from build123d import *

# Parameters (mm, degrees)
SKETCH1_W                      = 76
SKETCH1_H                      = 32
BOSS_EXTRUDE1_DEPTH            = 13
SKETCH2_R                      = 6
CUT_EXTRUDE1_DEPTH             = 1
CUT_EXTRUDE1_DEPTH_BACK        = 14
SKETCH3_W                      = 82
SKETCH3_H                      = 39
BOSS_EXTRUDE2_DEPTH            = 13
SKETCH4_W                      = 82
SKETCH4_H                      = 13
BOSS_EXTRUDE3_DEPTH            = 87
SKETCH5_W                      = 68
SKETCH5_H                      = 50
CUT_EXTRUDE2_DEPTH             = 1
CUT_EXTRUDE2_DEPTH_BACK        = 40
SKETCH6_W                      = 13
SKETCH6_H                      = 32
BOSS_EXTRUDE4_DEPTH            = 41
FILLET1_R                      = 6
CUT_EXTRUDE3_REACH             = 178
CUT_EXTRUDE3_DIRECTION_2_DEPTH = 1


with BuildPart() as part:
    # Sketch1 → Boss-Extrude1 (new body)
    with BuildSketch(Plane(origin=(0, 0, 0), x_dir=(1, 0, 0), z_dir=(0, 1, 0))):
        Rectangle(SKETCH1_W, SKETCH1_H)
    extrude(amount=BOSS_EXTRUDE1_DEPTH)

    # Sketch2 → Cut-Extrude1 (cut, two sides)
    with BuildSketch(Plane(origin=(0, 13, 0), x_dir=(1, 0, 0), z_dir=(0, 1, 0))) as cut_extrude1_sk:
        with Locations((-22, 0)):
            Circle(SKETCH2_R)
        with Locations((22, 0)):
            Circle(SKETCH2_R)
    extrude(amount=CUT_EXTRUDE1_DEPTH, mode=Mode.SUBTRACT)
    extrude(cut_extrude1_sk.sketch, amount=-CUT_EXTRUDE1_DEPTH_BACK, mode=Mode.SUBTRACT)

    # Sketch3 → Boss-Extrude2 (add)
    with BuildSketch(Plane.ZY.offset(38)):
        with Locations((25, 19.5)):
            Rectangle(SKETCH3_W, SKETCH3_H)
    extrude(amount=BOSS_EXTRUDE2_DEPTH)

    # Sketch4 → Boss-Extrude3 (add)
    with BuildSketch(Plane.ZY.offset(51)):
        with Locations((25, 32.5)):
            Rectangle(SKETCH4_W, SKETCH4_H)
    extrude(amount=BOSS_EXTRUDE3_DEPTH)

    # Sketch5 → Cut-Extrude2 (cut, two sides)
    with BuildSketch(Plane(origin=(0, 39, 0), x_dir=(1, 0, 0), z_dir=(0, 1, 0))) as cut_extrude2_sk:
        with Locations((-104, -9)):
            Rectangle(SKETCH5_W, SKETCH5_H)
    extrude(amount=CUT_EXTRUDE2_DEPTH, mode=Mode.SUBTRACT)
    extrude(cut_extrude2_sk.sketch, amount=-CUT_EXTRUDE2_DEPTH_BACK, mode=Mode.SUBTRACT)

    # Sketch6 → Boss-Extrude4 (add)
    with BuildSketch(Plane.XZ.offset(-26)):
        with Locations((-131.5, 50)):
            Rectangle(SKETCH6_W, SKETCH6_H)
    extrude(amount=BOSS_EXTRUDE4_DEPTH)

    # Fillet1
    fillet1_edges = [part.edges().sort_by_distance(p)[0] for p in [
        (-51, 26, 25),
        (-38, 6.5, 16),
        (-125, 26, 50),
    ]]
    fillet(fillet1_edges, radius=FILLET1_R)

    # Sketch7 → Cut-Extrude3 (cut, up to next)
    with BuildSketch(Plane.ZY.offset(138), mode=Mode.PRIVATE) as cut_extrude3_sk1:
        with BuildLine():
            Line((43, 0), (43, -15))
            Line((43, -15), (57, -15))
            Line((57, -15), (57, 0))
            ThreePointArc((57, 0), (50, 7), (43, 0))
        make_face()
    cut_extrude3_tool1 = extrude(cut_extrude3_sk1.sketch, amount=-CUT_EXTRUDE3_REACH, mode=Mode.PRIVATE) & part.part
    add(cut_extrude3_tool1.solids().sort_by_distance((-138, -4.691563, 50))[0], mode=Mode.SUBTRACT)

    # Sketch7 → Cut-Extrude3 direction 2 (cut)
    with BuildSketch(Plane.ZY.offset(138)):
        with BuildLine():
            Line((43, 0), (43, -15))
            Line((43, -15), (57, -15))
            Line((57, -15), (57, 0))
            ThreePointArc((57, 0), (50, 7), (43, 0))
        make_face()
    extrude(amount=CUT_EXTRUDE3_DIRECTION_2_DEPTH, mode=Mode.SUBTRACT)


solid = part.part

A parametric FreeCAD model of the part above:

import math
import FreeCAD as App
import Part
import Sketcher
from FreeCAD import Vector
Q = App.Units.Quantity


def edges_at(feature, points):
    """Names of the edges that pass closest to the given points."""
    edges = feature.Shape.Edges
    near = lambda p: min(range(len(edges)), key=lambda i: edges[i].distToShape(Part.Vertex(*p))[0])
    return sorted({f"Edge{near(p) + 1}" for p in points})


def add_polygon(sketch, points):
    """Adds a closed chain of lines whose ends are joined by coincident constraints."""
    first, n = sketch.GeometryCount, len(points)
    for a, b in zip(points, points[1:] + points[:1]):
        sketch.addGeometry(Part.LineSegment(App.Vector(*a, 0), App.Vector(*b, 0)), False)
    for i in range(n):
        sketch.addConstraint(Sketcher.Constraint("Coincident", first + i, 2, first + (i + 1) % n, 1))

doc = App.newDocument("Part")
body = doc.addObject("PartDesign::Body", "Body")

# Sketch on XZ plane
sketch1 = doc.addObject("Sketcher::SketchObject", "Sketch")
body.addObject(sketch1)
sketch1.AttachmentSupport = (doc.XZ_Plane, [""])
sketch1.MapMode = "FlatFace"
add_polygon(sketch1, [(-38, -16), (-38, 16), (38, 16), (38, -16)])  # lines 0-3
sketch1.addConstraint([
    Sketcher.Constraint("Vertical", 0),
    Sketcher.Constraint("Horizontal", 1),
    Sketcher.Constraint("Vertical", 2),
    Sketcher.Constraint("Horizontal", 3),
    Sketcher.Constraint("Symmetric", 0, 2, 2, 2, -1, 1),
    Sketcher.Constraint("DistanceX", 1, 1, 1, 2, Q("76 mm")),
    Sketcher.Constraint("DistanceY", 0, 1, 0, 2, Q("32 mm")),
])
pad1 = doc.addObject("PartDesign::Pad", "Pad")
body.addObject(pad1)
pad1.Profile = sketch1
pad1.Length = 13
pad1.Reversed = True

# Sketch on XZ plane
sketch2 = doc.addObject("Sketcher::SketchObject", "Sketch001")
body.addObject(sketch2)
sketch2.AttachmentSupport = (doc.XZ_Plane, [""])
sketch2.MapMode = "FlatFace"
sketch2.AttachmentOffset = App.Placement(Vector(0, 0, -13), App.Rotation())
sketch2.addGeometry([
    Part.Circle(Vector(-22, 0, 0), Vector(0, 0, 1), 6),
    Part.Circle(Vector(22, 0, 0), Vector(0, 0, 1), 6),
], False)
sketch2.addConstraint([
    Sketcher.Constraint("Equal", 0, 1),
    Sketcher.Constraint("Symmetric", 0, 3, 1, 3, -1, 1),
    Sketcher.Constraint("PointOnObject", 0, 3, -1),
    Sketcher.Constraint("Diameter", 0, Q("12 mm")),
    Sketcher.Constraint("DistanceX", 0, 3, -1, 1, Q("22 mm")),
])
pocket1 = doc.addObject("PartDesign::Pocket", "Pocket")
body.addObject(pocket1)
pocket1.Profile = sketch2
pocket1.Type = "ThroughAll"
pocket1.Midplane = True

# Sketch on YZ plane
sketch3 = doc.addObject("Sketcher::SketchObject", "Sketch002")
body.addObject(sketch3)
sketch3.AttachmentSupport = (doc.YZ_Plane, [""])
sketch3.MapMode = "FlatFace"
sketch3.AttachmentOffset = App.Placement(Vector(0, 0, -38), App.Rotation())
add_polygon(sketch3, [(39, -16), (0, -16), (0, 66), (39, 66)])  # lines 0-3
sketch3.addConstraint([
    Sketcher.Constraint("Horizontal", 0),
    Sketcher.Constraint("Vertical", 1),
    Sketcher.Constraint("Horizontal", 2),
    Sketcher.Constraint("Vertical", 3),
    Sketcher.Constraint("PointOnObject", 0, 2, -2),
    Sketcher.Constraint("DistanceX", 0, 2, 0, 1, Q("39 mm")),
    Sketcher.Constraint("DistanceY", 1, 1, 1, 2, Q("82 mm")),
    Sketcher.Constraint("DistanceY", 0, 2, -1, 1, Q("16 mm")),
])
pad2 = doc.addObject("PartDesign::Pad", "Pad001")
body.addObject(pad2)
pad2.Profile = sketch3
pad2.Length = 13
pad2.Reversed = True

# Sketch on YZ plane
sketch4 = doc.addObject("Sketcher::SketchObject", "Sketch003")
body.addObject(sketch4)
sketch4.AttachmentSupport = (doc.YZ_Plane, [""])
sketch4.MapMode = "FlatFace"
sketch4.AttachmentOffset = App.Placement(Vector(0, 0, -51), App.Rotation())
add_polygon(sketch4, [(39, -16), (26, -16), (26, 66), (39, 66)])  # lines 0-3
sketch4.addConstraint([
    Sketcher.Constraint("Horizontal", 0),
    Sketcher.Constraint("Vertical", 1),
    Sketcher.Constraint("Horizontal", 2),
    Sketcher.Constraint("Vertical", 3),
    Sketcher.Constraint("DistanceX", 0, 2, 0, 1, Q("13 mm")),
    Sketcher.Constraint("DistanceY", 1, 1, 1, 2, Q("82 mm")),
    Sketcher.Constraint("DistanceX", -1, 1, 0, 2, Q("26 mm")),
    Sketcher.Constraint("DistanceY", 0, 2, -1, 1, Q("16 mm")),
])
pad3 = doc.addObject("PartDesign::Pad", "Pad002")
body.addObject(pad3)
pad3.Profile = sketch4
pad3.Length = 87
pad3.Reversed = True

# Sketch on XZ plane
sketch5 = doc.addObject("Sketcher::SketchObject", "Sketch004")
body.addObject(sketch5)
sketch5.AttachmentSupport = (doc.XZ_Plane, [""])
sketch5.MapMode = "FlatFace"
sketch5.AttachmentOffset = App.Placement(Vector(0, 0, -39), App.Rotation())
add_polygon(sketch5, [(-138, -16), (-138, 34), (-70, 34), (-70, -16)])  # lines 0-3
sketch5.addConstraint([
    Sketcher.Constraint("Vertical", 0),
    Sketcher.Constraint("Horizontal", 1),
    Sketcher.Constraint("Vertical", 2),
    Sketcher.Constraint("Horizontal", 3),
    Sketcher.Constraint("DistanceX", 1, 1, 1, 2, Q("68 mm")),
    Sketcher.Constraint("DistanceY", 0, 1, 0, 2, Q("50 mm")),
    Sketcher.Constraint("DistanceX", 0, 2, -1, 1, Q("138 mm")),
    Sketcher.Constraint("DistanceY", -1, 1, 0, 2, Q("34 mm")),
])
pocket2 = doc.addObject("PartDesign::Pocket", "Pocket001")
body.addObject(pocket2)
pocket2.Profile = sketch5
pocket2.Type = "ThroughAll"
pocket2.Midplane = True

# Sketch on XZ plane
sketch6 = doc.addObject("Sketcher::SketchObject", "Sketch005")
body.addObject(sketch6)
sketch6.AttachmentSupport = (doc.XZ_Plane, [""])
sketch6.MapMode = "FlatFace"
sketch6.AttachmentOffset = App.Placement(Vector(0, 0, -26), App.Rotation())
add_polygon(sketch6, [(-138, 66), (-138, 34), (-125, 34), (-125, 66)])  # lines 0-3
sketch6.addConstraint([
    Sketcher.Constraint("Vertical", 0),
    Sketcher.Constraint("Horizontal", 1),
    Sketcher.Constraint("Vertical", 2),
    Sketcher.Constraint("Horizontal", 3),
    Sketcher.Constraint("DistanceX", 1, 1, 1, 2, Q("13 mm")),
    Sketcher.Constraint("DistanceY", 0, 2, 0, 1, Q("32 mm")),
    Sketcher.Constraint("DistanceX", 0, 2, -1, 1, Q("138 mm")),
    Sketcher.Constraint("DistanceY", -1, 1, 0, 2, Q("34 mm")),
])
pad4 = doc.addObject("PartDesign::Pad", "Pad003")
body.addObject(pad4)
pad4.Profile = sketch6
pad4.Length = 41
doc.recompute()

fillet = doc.addObject("PartDesign::Fillet", "Fillet")
body.addObject(fillet)
fillet.Base = (pad4, edges_at(pad4, [(-51, 26, 25), (-38, 6.5, 16), (-125, 26, 50)]))
fillet.Radius = 6

# Sketch on YZ plane
sketch7 = doc.addObject("Sketcher::SketchObject", "Sketch006")
body.addObject(sketch7)
sketch7.AttachmentSupport = (doc.YZ_Plane, [""])
sketch7.MapMode = "FlatFace"
sketch7.AttachmentOffset = App.Placement(Vector(0, 0, -138), App.Rotation())
sketch7.addGeometry([
    Part.LineSegment(Vector(0, 43, 0), Vector(-15, 43, 0)),
    Part.LineSegment(Vector(-15, 43, 0), Vector(-15, 57, 0)),
    Part.LineSegment(Vector(-15, 57, 0), Vector(0, 57, 0)),
    Part.ArcOfCircle(Part.Circle(Vector(0, 50, 0), Vector(0, 0, 1), 7), math.radians(-90), math.radians(90)),
], False)
sketch7.addConstraint([
    Sketcher.Constraint("Coincident", 0, 2, 1, 1),
    Sketcher.Constraint("Coincident", 1, 2, 2, 1),
    Sketcher.Constraint("Tangent", 2, 2, 3, 2),
    Sketcher.Constraint("Tangent", 3, 1, 0, 1),
    Sketcher.Constraint("Horizontal", 0),
    Sketcher.Constraint("Vertical", 1),
    Sketcher.Constraint("Horizontal", 2),
    Sketcher.Constraint("PointOnObject", 3, 3, -2),
    Sketcher.Constraint("Radius", 3, Q("7 mm")),
    Sketcher.Constraint("DistanceX", 0, 2, 0, 1, Q("15 mm")),
    Sketcher.Constraint("DistanceY", -1, 1, 3, 3, Q("50 mm")),
])
pocket3 = doc.addObject("PartDesign::Pocket", "Pocket002")
body.addObject(pocket3)
pocket3.Profile = sketch7
pocket3.Type = "UpToFirst"
pocket3.Reversed = True

# Sketch on YZ plane
sketch8 = doc.addObject("Sketcher::SketchObject", "Sketch007")
body.addObject(sketch8)
sketch8.AttachmentSupport = (doc.YZ_Plane, [""])
sketch8.MapMode = "FlatFace"
sketch8.AttachmentOffset = App.Placement(Vector(0, 0, -138), App.Rotation())
sketch8.addGeometry([
    Part.LineSegment(Vector(0, 43, 0), Vector(-15, 43, 0)),
    Part.LineSegment(Vector(-15, 43, 0), Vector(-15, 57, 0)),
    Part.LineSegment(Vector(-15, 57, 0), Vector(0, 57, 0)),
    Part.ArcOfCircle(Part.Circle(Vector(0, 50, 0), Vector(0, 0, 1), 7), math.radians(-90), math.radians(90)),
], False)
sketch8.addConstraint([
    Sketcher.Constraint("Coincident", 0, 2, 1, 1),
    Sketcher.Constraint("Coincident", 1, 2, 2, 1),
    Sketcher.Constraint("Tangent", 2, 2, 3, 2),
    Sketcher.Constraint("Tangent", 3, 1, 0, 1),
    Sketcher.Constraint("Horizontal", 0),
    Sketcher.Constraint("Vertical", 1),
    Sketcher.Constraint("Horizontal", 2),
    Sketcher.Constraint("PointOnObject", 3, 3, -2),
    Sketcher.Constraint("Radius", 3, Q("7 mm")),
    Sketcher.Constraint("DistanceX", 0, 2, 0, 1, Q("15 mm")),
    Sketcher.Constraint("DistanceY", -1, 1, 3, 3, Q("50 mm")),
])
pocket4 = doc.addObject("PartDesign::Pocket", "Pocket003")
body.addObject(pocket4)
pocket4.Profile = sketch8
pocket4.Length = 1

doc.recompute()
